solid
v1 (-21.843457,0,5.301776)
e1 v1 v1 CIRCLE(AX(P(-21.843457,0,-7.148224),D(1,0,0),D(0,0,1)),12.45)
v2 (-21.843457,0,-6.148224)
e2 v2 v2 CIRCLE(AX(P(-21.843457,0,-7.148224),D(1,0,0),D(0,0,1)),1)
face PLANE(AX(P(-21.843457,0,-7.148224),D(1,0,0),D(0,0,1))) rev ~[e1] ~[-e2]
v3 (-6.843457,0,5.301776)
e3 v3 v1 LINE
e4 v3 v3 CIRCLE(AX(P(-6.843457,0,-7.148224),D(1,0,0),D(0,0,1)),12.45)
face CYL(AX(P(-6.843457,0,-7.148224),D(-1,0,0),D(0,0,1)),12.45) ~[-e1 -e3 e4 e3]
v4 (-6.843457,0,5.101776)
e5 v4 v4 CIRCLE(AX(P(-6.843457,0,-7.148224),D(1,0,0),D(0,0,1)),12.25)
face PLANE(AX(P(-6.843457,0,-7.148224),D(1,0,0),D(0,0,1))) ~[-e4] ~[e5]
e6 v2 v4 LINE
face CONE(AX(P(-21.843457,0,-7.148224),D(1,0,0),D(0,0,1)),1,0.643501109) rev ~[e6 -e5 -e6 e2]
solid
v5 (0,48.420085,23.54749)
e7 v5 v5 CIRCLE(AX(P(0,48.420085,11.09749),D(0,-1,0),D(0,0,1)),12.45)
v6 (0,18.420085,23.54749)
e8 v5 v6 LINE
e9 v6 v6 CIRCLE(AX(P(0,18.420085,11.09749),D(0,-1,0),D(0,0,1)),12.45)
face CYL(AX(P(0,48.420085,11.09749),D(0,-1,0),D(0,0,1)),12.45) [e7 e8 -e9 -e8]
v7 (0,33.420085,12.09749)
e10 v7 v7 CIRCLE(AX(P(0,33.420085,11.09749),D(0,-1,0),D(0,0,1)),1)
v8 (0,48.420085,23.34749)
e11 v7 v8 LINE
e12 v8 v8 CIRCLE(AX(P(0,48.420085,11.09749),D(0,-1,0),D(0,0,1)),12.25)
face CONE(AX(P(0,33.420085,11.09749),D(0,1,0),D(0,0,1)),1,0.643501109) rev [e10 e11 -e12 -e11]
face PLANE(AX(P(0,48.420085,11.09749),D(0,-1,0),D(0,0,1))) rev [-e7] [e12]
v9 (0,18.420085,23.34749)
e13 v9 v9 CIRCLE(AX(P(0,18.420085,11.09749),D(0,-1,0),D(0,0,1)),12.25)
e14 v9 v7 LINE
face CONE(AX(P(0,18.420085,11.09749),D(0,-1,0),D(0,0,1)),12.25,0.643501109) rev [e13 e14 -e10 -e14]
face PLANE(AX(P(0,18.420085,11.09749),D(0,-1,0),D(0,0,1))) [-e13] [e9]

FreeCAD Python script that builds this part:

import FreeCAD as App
import Part
import Sketcher
from FreeCAD import Vector

doc = App.newDocument("Part")
params = doc.addObject("Spreadsheet::Sheet", "Params")
for row, (alias, value) in enumerate([
    ("sketch1_width", "30 mm"),
    ("sketch1_height", "0.2 mm"),
    ("sketch1_length", "18.75 mm"),
    ("revolution_angle", "360 deg"),
    ("sketch2_width", "15 mm"),
    ("sketch2_height", "0.2 mm"),
    ("sketch2_height2", "11.45 mm"),
    ("revolution2_angle", "360 deg"),
], start=1):
    params.set(f"A{row}", alias)
    params.set(f"B{row}", "=" + value)
    params.setAlias(f"B{row}", alias)

body = doc.addObject("PartDesign::Body", "Body")

# Sketch on YZ plane
sketch1 = doc.addObject("Sketcher::SketchObject", "Sketch")
body.addObject(sketch1)
sketch1.AttachmentSupport = (doc.YZ_Plane, [""])
sketch1.MapMode = "FlatFace"
sketch1.addGeometry([
    Part.LineSegment(Vector(18.42, 23.35, 0), Vector(33.42, 12.1, 0)),  # 0
    Part.LineSegment(Vector(33.42, 12.1, 0), Vector(48.42, 23.35, 0)),  # 1
    Part.LineSegment(Vector(48.42, 23.35, 0), Vector(48.42, 23.55, 0)),  # 2
    Part.LineSegment(Vector(48.42, 23.55, 0), Vector(18.42, 23.55, 0)),  # 3
    Part.LineSegment(Vector(18.42, 23.55, 0), Vector(18.42, 23.35, 0)),  # 4
], False)
sketch1.addGeometry(Part.LineSegment(Vector(48.42, 11.1, 0), Vector(18.42, 11.1, 0)), True)  # axis
sketch1.addConstraint([
    Sketcher.Constraint("Coincident", 0, 2, 1, 1),
    Sketcher.Constraint("Coincident", 1, 2, 2, 1),
    Sketcher.Constraint("Coincident", 2, 2, 3, 1),
    Sketcher.Constraint("Coincident", 3, 2, 4, 1),
    Sketcher.Constraint("Coincident", 4, 2, 0, 1),
    Sketcher.Constraint("Vertical", 2),
    Sketcher.Constraint("Horizontal", 3),
    Sketcher.Constraint("Vertical", 4),
    Sketcher.Constraint("Horizontal", 5),
    Sketcher.Constraint("Horizontal", 1, 2, 4, 2),
    Sketcher.Constraint("Vertical", 2, 2, 5, 1),
    Sketcher.Constraint("Vertical", 4, 2, 5, 2),
    Sketcher.Constraint("Equal", 0, 1),
    Sketcher.Constraint("DistanceX", 3, 2, 3, 1, 30.0),
    Sketcher.Constraint("DistanceY", 2, 1, 2, 2, 0.2),
    Sketcher.Constraint("DistanceY", 5, 1, 0, 2, 1.0),
    Sketcher.Constraint("Distance", 0, 18.75),
    Sketcher.Constraint("DistanceY", -1, 1, 0, 2, 12.09749),
    Sketcher.Constraint("DistanceX", -1, 1, 0, 2, 33.420085),
])
sketch1.setExpression("Constraints[13]", "Params.sketch1_width")
sketch1.setExpression("Constraints[14]", "Params.sketch1_height")
sketch1.setExpression("Constraints[16]", "Params.sketch1_length")
revolution = doc.addObject("PartDesign::Revolution", "Revolution")
body.addObject(revolution)
revolution.Profile = sketch1
revolution.ReferenceAxis = (sketch1, ["Axis0"])
revolution.setExpression("Angle", "Params.revolution_angle")
body2 = doc.addObject("PartDesign::Body", "Body001")

# Sketch on XZ plane
sketch2 = doc.addObject("Sketcher::SketchObject", "Sketch001")
body2.addObject(sketch2)
sketch2.AttachmentSupport = (doc.getObject("XZ_Plane001"), [""])
sketch2.MapMode = "FlatFace"
sketch2.addGeometry([
    Part.LineSegment(Vector(-6.84, 5.3, 0), Vector(-21.84, 5.3, 0)),
    Part.LineSegment(Vector(-21.84, 5.3, 0), Vector(-21.84, -6.15, 0)),
    Part.LineSegment(Vector(-21.84, -6.15, 0), Vector(-6.84, 5.1, 0)),
    Part.LineSegment(Vector(-6.84, 5.1, 0), Vector(-6.84, 5.3, 0)),
], False)
sketch2.addGeometry(Part.LineSegment(Vector(-21.84, -7.15, 0), Vector(-6.84, -7.15, 0)), True)  # axis
sketch2.addConstraint([
    Sketcher.Constraint("Coincident", 0, 2, 1, 1),
    Sketcher.Constraint("Coincident", 1, 2, 2, 1),
    Sketcher.Constraint("Coincident", 2, 2, 3, 1),
    Sketcher.Constraint("Coincident", 3, 2, 0, 1),
    Sketcher.Constraint("Horizontal", 0),
    Sketcher.Constraint("Vertical", 1),
    Sketcher.Constraint("Vertical", 3),
    Sketcher.Constraint("Horizontal", 4),
    Sketcher.Constraint("Vertical", 1, 2, 4, 1),
    Sketcher.Constraint("Vertical", 3, 2, 4, 2),
    Sketcher.Constraint("DistanceX", 0, 2, 0, 1, 15.0),
    Sketcher.Constraint("DistanceY", 3, 1, 3, 2, 0.2),
    Sketcher.Constraint("DistanceY", 4, 1, 1, 2, 1.0),
    Sketcher.Constraint("DistanceY", 1, 2, 1, 1, 11.45),
    Sketcher.Constraint("DistanceX", 0, 2, -1, 1, 21.843457),
    Sketcher.Constraint("DistanceY", -1, 1, 0, 2, 5.301776),
])
sketch2.setExpression("Constraints[10]", "Params.sketch2_width")
sketch2.setExpression("Constraints[11]", "Params.sketch2_height")
sketch2.setExpression("Constraints[13]", "Params.sketch2_height2")
revolution2 = doc.addObject("PartDesign::Revolution", "Revolution001")
body2.addObject(revolution2)
revolution2.Profile = sketch2
revolution2.ReferenceAxis = (sketch2, ["Axis0"])
revolution2.setExpression("Angle", "Params.revolution2_angle")

doc.recompute()
